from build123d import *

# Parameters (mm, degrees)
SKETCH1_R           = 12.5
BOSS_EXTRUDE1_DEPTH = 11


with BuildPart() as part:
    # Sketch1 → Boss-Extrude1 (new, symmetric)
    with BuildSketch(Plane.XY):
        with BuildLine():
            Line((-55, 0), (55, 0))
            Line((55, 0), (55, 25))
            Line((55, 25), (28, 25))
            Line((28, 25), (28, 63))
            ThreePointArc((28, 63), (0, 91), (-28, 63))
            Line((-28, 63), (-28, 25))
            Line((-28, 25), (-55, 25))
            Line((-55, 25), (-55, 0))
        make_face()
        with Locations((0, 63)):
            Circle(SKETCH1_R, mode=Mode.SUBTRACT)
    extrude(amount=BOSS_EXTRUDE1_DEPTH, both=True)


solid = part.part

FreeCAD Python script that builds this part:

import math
import FreeCAD as App
import Part
import Sketcher
from FreeCAD import Vector

doc = App.newDocument("Part")
body = doc.addObject("PartDesign::Body", "Body")

# Sketch on XY plane
sketch1 = doc.addObject("Sketcher::SketchObject", "Sketch")
body.addObject(sketch1)
sketch1.AttachmentSupport = (doc.XY_Plane, [""])
sketch1.MapMode = "FlatFace"
sketch1.addGeometry(Part.LineSegment(Vector(-55, 0, 0), Vector(55, 0, 0)), False)
sketch1.addGeometry(Part.LineSegment(Vector(55, 0, 0), Vector(55, 25, 0)), False)
sketch1.addGeometry(Part.LineSegment(Vector(55, 25, 0), Vector(28, 25, 0)), False)
sketch1.addGeometry(Part.LineSegment(Vector(28, 25, 0), Vector(28, 63, 0)), False)
sketch1.addGeometry(Part.ArcOfCircle(Part.Circle(Vector(0, 63, 0), Vector(0, 0, 1), 28), math.radians(0), math.radians(180)), False)
sketch1.addGeometry(Part.LineSegment(Vector(-28, 63, 0), Vector(-28, 25, 0)), False)
sketch1.addGeometry(Part.LineSegment(Vector(-28, 25, 0), Vector(-55, 25, 0)), False)
sketch1.addGeometry(Part.LineSegment(Vector(-55, 25, 0), Vector(-55, 0, 0)), False)
sketch1.addGeometry(Part.Circle(Vector(0, 63, 0), Vector(0, 0, 1), 12), False)
sketch1.addConstraint(Sketcher.Constraint("Coincident", 0, 2, 1, 1))
sketch1.addConstraint(Sketcher.Constraint("Coincident", 1, 2, 2, 1))
sketch1.addConstraint(Sketcher.Constraint("Coincident", 2, 2, 3, 1))
sketch1.addConstraint(Sketcher.Constraint("Tangent", 3, 2, 4, 1))
sketch1.addConstraint(Sketcher.Constraint("Tangent", 4, 2, 5, 1))
sketch1.addConstraint(Sketcher.Constraint("Coincident", 5, 2, 6, 1))
sketch1.addConstraint(Sketcher.Constraint("Coincident", 6, 2, 7, 1))
sketch1.addConstraint(Sketcher.Constraint("Coincident", 7, 2, 0, 1))
sketch1.addConstraint(Sketcher.Constraint("Horizontal", 0))
sketch1.addConstraint(Sketcher.Constraint("Vertical", 1))
sketch1.addConstraint(Sketcher.Constraint("Horizontal", 2))
sketch1.addConstraint(Sketcher.Constraint("Vertical", 3))
sketch1.addConstraint(Sketcher.Constraint("Vertical", 5))
sketch1.addConstraint(Sketcher.Constraint("Horizontal", 6))
sketch1.addConstraint(Sketcher.Constraint("Vertical", 7))
sketch1.addConstraint(Sketcher.Constraint("Coincident", 8, 3, 4, 3))
sketch1.addConstraint(Sketcher.Constraint("Symmetric", 0, 2, 7, 2, -1, 1))
sketch1.addConstraint(Sketcher.Constraint("Symmetric", 2, 2, 5, 2, -2))
sketch1.addConstraint(Sketcher.Constraint("Diameter", 8, 25.0))
sketch1.addConstraint(Sketcher.Constraint("Radius", 4, 28.0))
sketch1.addConstraint(Sketcher.Constraint("DistanceX", 0, 1, 0, 2, 110.0))
sketch1.addConstraint(Sketcher.Constraint("DistanceY", 1, 1, 1, 2, 25.0))
sketch1.addConstraint(Sketcher.Constraint("DistanceY", 3, 1, 3, 2, 38.0))
pad1 = doc.addObject("PartDesign::Pad", "Pad")
body.addObject(pad1)
pad1.Profile = sketch1
pad1.Length = 22
pad1.Midplane = True

doc.recompute()
